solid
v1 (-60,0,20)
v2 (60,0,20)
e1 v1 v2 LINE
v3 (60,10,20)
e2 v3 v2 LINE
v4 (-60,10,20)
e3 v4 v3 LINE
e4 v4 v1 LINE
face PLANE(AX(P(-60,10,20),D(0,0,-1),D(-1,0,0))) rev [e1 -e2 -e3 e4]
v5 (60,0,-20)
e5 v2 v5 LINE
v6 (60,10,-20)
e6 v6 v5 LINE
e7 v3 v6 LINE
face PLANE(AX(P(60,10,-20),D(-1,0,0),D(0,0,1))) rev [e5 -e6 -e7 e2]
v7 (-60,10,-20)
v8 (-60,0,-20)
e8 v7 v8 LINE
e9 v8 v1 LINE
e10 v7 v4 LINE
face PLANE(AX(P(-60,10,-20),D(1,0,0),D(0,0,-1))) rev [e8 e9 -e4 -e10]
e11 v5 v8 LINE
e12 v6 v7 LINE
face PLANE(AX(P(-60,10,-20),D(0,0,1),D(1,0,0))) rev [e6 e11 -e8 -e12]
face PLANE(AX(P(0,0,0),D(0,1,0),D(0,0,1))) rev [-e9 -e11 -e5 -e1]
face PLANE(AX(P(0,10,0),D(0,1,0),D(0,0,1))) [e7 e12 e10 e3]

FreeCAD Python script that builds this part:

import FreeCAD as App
import Part
import Sketcher
Q = App.Units.Quantity

doc = App.newDocument("Part")
body = doc.addObject("PartDesign::Body", "Body")

sketch1 = doc.addObject("Sketcher::SketchObject", "Sketch")
body.addObject(sketch1)
sketch1.AttachmentSupport = (doc.XZ_Plane, [""])
sketch1.MapMode = "FlatFace"
sketch1.addGeometry([
    Part.LineSegment(App.Vector(-60, -20, 0), App.Vector(-60, 20, 0)),
    Part.LineSegment(App.Vector(-60, 20, 0), App.Vector(60, 20, 0)),
    Part.LineSegment(App.Vector(60, 20, 0), App.Vector(60, -20, 0)),
    Part.LineSegment(App.Vector(60, -20, 0), App.Vector(-60, -20, 0)),
], False)
sketch1.addConstraint([
    Sketcher.Constraint("Coincident", 0, 2, 1, 1),
    Sketcher.Constraint("Coincident", 1, 2, 2, 1),
    Sketcher.Constraint("Coincident", 2, 2, 3, 1),
    Sketcher.Constraint("Coincident", 3, 2, 0, 1),
    Sketcher.Constraint("Vertical", 0),
    Sketcher.Constraint("Horizontal", 1),
    Sketcher.Constraint("Vertical", 2),
    Sketcher.Constraint("Horizontal", 3),
    Sketcher.Constraint("Symmetric", 0, 2, 2, 2, -1, 1),
    Sketcher.Constraint("DistanceX", 1, 1, 1, 2, Q("120 mm")),
    Sketcher.Constraint("DistanceY", 0, 1, 0, 2, Q("40 mm")),
])
pad1 = doc.addObject("PartDesign::Pad", "Pad")
body.addObject(pad1)
pad1.Profile = sketch1
pad1.Length = 10
pad1.Reversed = True

doc.recompute()
